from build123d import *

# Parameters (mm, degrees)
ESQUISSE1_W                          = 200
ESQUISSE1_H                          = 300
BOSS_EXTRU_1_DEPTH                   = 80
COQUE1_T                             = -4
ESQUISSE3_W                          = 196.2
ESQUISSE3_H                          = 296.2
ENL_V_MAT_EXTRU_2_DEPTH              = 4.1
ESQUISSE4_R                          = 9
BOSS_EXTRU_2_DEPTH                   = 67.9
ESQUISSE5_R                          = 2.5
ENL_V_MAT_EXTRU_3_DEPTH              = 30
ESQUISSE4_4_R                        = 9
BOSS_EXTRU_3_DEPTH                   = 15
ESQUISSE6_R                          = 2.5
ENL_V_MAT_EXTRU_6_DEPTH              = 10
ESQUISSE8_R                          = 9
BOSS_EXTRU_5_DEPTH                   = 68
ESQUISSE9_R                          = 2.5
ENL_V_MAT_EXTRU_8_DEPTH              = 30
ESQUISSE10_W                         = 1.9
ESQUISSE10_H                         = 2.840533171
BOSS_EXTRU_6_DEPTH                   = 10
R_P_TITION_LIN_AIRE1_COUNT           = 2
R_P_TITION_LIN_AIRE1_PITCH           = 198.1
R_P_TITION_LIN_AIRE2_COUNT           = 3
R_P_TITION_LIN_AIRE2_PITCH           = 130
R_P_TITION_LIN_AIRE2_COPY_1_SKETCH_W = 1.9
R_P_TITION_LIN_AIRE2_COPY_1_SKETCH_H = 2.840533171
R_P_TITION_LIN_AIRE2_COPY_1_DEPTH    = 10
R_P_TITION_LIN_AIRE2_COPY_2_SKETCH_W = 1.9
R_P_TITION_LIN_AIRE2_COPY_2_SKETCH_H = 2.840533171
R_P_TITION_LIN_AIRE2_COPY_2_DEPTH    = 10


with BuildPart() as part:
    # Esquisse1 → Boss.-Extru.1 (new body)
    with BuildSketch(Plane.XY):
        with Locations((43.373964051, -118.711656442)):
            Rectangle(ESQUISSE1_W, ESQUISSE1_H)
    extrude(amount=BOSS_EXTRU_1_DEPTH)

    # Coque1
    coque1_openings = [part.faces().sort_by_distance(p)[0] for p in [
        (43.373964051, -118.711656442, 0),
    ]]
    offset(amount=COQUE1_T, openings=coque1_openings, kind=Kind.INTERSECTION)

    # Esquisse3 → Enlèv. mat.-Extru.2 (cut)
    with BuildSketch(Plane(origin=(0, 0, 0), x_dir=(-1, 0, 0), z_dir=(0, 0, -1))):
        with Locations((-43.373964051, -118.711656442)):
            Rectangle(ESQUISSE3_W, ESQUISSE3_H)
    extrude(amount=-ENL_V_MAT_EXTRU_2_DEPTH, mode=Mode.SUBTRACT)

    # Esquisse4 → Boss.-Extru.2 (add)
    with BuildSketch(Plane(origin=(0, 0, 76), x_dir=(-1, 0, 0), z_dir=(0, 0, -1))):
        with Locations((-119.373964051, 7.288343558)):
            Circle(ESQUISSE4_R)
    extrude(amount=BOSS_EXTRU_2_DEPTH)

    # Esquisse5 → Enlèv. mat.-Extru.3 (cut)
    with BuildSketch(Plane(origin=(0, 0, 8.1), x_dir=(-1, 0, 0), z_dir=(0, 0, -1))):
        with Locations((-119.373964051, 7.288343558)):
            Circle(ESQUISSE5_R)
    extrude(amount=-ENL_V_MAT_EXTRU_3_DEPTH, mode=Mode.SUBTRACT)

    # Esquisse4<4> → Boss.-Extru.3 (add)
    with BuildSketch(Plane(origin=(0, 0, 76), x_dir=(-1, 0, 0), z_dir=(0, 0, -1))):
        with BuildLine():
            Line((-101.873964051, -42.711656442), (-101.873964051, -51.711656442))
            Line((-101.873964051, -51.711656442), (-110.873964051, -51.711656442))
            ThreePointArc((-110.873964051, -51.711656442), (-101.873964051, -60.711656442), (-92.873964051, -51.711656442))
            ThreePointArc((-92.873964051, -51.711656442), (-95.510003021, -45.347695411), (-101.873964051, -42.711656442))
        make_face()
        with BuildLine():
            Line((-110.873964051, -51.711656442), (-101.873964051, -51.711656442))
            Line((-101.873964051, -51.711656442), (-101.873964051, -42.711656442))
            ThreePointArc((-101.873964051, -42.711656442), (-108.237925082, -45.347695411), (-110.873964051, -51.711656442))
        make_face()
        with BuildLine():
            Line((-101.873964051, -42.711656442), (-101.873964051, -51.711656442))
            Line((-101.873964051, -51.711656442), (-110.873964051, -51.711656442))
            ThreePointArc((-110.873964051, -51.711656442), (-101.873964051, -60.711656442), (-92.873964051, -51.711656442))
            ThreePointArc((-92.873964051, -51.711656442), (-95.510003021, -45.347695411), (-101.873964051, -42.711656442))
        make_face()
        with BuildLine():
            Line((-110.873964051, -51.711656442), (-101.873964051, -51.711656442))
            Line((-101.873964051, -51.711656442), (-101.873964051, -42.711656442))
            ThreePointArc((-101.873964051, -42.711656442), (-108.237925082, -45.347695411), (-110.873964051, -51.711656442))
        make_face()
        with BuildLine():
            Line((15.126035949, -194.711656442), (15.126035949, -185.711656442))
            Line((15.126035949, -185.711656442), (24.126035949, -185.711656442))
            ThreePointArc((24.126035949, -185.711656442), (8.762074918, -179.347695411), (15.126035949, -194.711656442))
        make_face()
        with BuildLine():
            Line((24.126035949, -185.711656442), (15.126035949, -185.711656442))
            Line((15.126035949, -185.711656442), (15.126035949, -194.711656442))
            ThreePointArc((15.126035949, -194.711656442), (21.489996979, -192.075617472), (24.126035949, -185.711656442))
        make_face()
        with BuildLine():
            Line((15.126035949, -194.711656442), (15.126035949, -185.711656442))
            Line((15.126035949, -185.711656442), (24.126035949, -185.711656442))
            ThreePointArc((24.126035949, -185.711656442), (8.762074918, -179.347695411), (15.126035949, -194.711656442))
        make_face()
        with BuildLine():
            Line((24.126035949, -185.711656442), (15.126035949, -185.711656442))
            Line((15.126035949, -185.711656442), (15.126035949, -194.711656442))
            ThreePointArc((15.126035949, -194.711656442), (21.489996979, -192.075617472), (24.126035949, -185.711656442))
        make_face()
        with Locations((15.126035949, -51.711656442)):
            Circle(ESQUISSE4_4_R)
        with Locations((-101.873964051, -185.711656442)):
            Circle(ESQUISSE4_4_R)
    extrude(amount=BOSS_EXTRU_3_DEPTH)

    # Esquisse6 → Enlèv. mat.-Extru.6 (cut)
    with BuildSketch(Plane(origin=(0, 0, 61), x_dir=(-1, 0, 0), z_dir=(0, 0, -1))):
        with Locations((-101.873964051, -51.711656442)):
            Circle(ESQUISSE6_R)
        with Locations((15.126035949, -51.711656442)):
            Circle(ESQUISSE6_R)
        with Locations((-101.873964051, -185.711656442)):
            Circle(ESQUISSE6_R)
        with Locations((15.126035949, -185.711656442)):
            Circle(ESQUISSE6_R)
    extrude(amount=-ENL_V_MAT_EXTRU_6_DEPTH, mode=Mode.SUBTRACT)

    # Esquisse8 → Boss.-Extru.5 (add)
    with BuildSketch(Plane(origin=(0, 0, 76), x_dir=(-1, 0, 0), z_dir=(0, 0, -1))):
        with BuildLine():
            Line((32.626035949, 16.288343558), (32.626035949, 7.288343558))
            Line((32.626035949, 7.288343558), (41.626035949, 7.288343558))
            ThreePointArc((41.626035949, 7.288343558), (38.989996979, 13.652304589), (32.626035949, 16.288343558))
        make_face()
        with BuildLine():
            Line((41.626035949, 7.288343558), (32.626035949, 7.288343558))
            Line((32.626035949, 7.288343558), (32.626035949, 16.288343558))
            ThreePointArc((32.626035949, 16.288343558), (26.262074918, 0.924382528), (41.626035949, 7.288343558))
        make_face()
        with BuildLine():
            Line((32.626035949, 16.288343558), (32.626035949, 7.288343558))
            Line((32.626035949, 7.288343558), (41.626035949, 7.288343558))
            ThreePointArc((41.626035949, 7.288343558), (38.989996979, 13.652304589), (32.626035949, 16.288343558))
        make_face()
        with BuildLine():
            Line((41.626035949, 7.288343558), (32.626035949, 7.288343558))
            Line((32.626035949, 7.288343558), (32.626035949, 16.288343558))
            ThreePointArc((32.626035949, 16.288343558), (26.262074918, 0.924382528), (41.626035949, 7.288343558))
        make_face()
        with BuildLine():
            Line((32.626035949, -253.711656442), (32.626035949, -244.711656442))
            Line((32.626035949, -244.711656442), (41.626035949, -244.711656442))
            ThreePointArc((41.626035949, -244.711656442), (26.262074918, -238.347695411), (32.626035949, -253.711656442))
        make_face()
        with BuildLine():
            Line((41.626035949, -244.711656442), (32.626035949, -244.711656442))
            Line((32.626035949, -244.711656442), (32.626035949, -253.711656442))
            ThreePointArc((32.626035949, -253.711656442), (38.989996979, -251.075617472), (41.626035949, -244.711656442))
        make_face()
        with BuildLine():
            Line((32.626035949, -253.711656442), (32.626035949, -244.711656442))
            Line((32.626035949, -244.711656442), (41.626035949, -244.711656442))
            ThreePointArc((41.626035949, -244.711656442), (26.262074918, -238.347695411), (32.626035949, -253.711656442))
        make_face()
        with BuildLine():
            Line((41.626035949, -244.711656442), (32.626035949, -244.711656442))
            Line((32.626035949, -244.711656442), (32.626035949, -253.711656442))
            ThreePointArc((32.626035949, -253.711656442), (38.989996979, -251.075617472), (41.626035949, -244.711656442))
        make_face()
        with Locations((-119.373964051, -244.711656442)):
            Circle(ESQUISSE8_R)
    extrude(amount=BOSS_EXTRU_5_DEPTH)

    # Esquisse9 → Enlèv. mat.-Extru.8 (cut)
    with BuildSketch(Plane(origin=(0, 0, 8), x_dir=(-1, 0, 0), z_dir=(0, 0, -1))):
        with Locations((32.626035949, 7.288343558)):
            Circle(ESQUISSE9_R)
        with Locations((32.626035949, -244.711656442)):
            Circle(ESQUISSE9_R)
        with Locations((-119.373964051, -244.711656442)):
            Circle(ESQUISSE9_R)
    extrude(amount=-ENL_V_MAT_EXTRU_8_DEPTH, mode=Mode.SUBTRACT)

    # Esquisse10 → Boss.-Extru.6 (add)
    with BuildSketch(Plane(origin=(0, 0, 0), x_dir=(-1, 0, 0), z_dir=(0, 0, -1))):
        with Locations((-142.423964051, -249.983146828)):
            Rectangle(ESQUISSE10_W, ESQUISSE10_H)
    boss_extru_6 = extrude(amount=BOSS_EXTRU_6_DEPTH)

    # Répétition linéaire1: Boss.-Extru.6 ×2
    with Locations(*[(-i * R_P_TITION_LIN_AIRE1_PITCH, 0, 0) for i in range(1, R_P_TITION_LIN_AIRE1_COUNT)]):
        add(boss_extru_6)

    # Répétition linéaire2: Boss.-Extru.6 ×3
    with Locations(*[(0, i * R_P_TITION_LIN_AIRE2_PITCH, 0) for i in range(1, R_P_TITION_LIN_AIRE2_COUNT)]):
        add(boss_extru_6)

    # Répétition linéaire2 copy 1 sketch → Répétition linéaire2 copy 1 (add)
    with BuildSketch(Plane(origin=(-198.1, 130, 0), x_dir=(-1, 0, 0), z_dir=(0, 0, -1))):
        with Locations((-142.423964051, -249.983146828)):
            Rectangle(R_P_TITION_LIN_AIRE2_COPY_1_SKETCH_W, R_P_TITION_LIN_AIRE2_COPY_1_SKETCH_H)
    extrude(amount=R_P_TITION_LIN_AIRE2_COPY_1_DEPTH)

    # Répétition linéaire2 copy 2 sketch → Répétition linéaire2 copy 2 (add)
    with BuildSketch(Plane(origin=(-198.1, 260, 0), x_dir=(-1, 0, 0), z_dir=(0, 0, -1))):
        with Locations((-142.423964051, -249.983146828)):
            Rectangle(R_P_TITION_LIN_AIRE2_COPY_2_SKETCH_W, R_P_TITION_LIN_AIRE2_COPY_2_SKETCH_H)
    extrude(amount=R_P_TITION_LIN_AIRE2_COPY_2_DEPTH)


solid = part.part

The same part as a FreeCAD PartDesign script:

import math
import FreeCAD as App
import Part
import Sketcher

V = App.Vector
Q = App.Units.Quantity


def faces_at(feature, points):
    """Names of the faces that lie closest to the given points."""
    faces = feature.Shape.Faces
    near = lambda p: min(range(len(faces)), key=lambda i: faces[i].distToShape(Part.Vertex(*p))[0])
    return sorted({f"Face{near(p) + 1}" for p in points})


def add_polygon(sketch, points):
    """Adds a closed chain of lines whose ends are joined by coincident constraints."""
    first, n = sketch.GeometryCount, len(points)
    for a, b in zip(points, points[1:] + points[:1]):
        sketch.addGeometry(Part.LineSegment(App.Vector(*a, 0), App.Vector(*b, 0)), False)
    for i in range(n):
        sketch.addConstraint(Sketcher.Constraint("Coincident", first + i, 2, first + (i + 1) % n, 1))

doc = App.newDocument("Part")
body = doc.addObject("PartDesign::Body", "Body")

# Sketch on XY plane
sketch1 = body.newObject("Sketcher::SketchObject", "Sketch")
sketch1.AttachmentSupport = (doc.getObject("XY_Plane"), [""])
sketch1.MapMode = "FlatFace"
add_polygon(sketch1, [(-57, 31), (-57, -269), (143, -269), (143, 31)])  # lines 0-3
sketch1.addConstraint(Sketcher.Constraint("Vertical", 0))
sketch1.addConstraint(Sketcher.Constraint("Horizontal", 1))
sketch1.addConstraint(Sketcher.Constraint("Vertical", 2))
sketch1.addConstraint(Sketcher.Constraint("Horizontal", 3))
sketch1.addConstraint(Sketcher.Constraint("DistanceX", 1, 1, 1, 2, Q("200 mm")))
sketch1.addConstraint(Sketcher.Constraint("DistanceY", 0, 2, 0, 1, Q("300 mm")))
sketch1.addConstraint(Sketcher.Constraint("DistanceX", 0, 2, -1, 1, Q("56.626036 mm")))
sketch1.addConstraint(Sketcher.Constraint("DistanceY", 0, 2, -1, 1, Q("268.711656 mm")))
pad1 = body.newObject("PartDesign::Pad", "Pad")
pad1.Profile = sketch1
pad1.Length = 80
doc.recompute()

thickness = body.newObject("PartDesign::Thickness", "Thickness")
thickness.Base = (pad1, faces_at(pad1, [(43.374, -118.712, 0)]))
thickness.Value = 4
thickness.Reversed = True
thickness.Join = "Intersection"

# Sketch on XY plane
sketch2 = body.newObject("Sketcher::SketchObject", "Sketch001")
sketch2.AttachmentSupport = (doc.getObject("XY_Plane"), [""])
sketch2.MapMode = "FlatFace"
add_polygon(sketch2, [(141, 29), (141, -267), (-55, -267), (-55, 29)])  # lines 0-3
sketch2.addConstraint(Sketcher.Constraint("Vertical", 0))
sketch2.addConstraint(Sketcher.Constraint("Horizontal", 1))
sketch2.addConstraint(Sketcher.Constraint("Vertical", 2))
sketch2.addConstraint(Sketcher.Constraint("Horizontal", 3))
sketch2.addConstraint(Sketcher.Constraint("DistanceX", 1, 2, 1, 1, Q("196.2 mm")))
sketch2.addConstraint(Sketcher.Constraint("DistanceY", 0, 2, 0, 1, Q("296.2 mm")))
sketch2.addConstraint(Sketcher.Constraint("DistanceX", -1, 1, 0, 2, Q("141.473964 mm")))
sketch2.addConstraint(Sketcher.Constraint("DistanceY", 0, 2, -1, 1, Q("266.811656 mm")))
pocket1 = body.newObject("PartDesign::Pocket", "Pocket")
pocket1.Profile = sketch2
pocket1.Length = 4.1
pocket1.Reversed = True

# Sketch on XY plane
sketch3 = body.newObject("Sketcher::SketchObject", "Sketch002")
sketch3.AttachmentSupport = (doc.getObject("XY_Plane"), [""])
sketch3.MapMode = "FlatFace"
sketch3.AttachmentOffset = App.Placement(V(0, 0, 76), App.Rotation())
sketch3.addGeometry(Part.Circle(V(119, 7, 0), V(0, 0, 1), 9), False)
sketch3.addConstraint(Sketcher.Constraint("Diameter", 0, Q("18 mm")))
sketch3.addConstraint(Sketcher.Constraint("DistanceX", -1, 1, 0, 3, Q("119.373964 mm")))
sketch3.addConstraint(Sketcher.Constraint("DistanceY", -1, 1, 0, 3, Q("7.288344 mm")))
pad2 = body.newObject("PartDesign::Pad", "Pad001")
pad2.Profile = sketch3
pad2.Length = 67.9
pad2.Reversed = True

# Sketch on XY plane
sketch4 = body.newObject("Sketcher::SketchObject", "Sketch003")
sketch4.AttachmentSupport = (doc.getObject("XY_Plane"), [""])
sketch4.MapMode = "FlatFace"
sketch4.AttachmentOffset = App.Placement(V(0, 0, 8.1), App.Rotation())
sketch4.addGeometry(Part.Circle(V(119.4, 7.3, 0), V(0, 0, 1), 2.5), False)
sketch4.addConstraint(Sketcher.Constraint("Diameter", 0, Q("5 mm")))
sketch4.addConstraint(Sketcher.Constraint("DistanceX", -1, 1, 0, 3, Q("119.373964 mm")))
sketch4.addConstraint(Sketcher.Constraint("DistanceY", -1, 1, 0, 3, Q("7.288344 mm")))
pocket2 = body.newObject("PartDesign::Pocket", "Pocket001")
pocket2.Profile = sketch4
pocket2.Length = 30
pocket2.Reversed = True

# Sketch on XY plane
sketch5 = body.newObject("Sketcher::SketchObject", "Sketch004")
sketch5.AttachmentSupport = (doc.getObject("XY_Plane"), [""])
sketch5.MapMode = "FlatFace"
sketch5.AttachmentOffset = App.Placement(V(0, 0, 76), App.Rotation())
sketch5.addGeometry(Part.ArcOfCircle(Part.Circle(V(102, -52, 0), V(0, 0, 1), 9), math.radians(180), math.radians(360)), False)
sketch5.addGeometry(Part.ArcOfCircle(Part.Circle(V(102, -52, 0), V(0, 0, 1), 9), math.radians(90), math.radians(180)), False)
sketch5.addGeometry(Part.ArcOfCircle(Part.Circle(V(102, -52, 0), V(0, 0, 1), 9), math.radians(0), math.radians(90)), False)
sketch5.addGeometry(Part.ArcOfCircle(Part.Circle(V(-15, -186, 0), V(0, 0, 1), 9), math.radians(-90), math.radians(180)), False)
sketch5.addGeometry(Part.ArcOfCircle(Part.Circle(V(-15, -186, 0), V(0, 0, 1), 9), math.radians(-180), math.radians(-90)), False)
sketch5.addGeometry(Part.Circle(V(-15, -52, 0), V(0, 0, 1), 9), False)
sketch5.addGeometry(Part.Circle(V(102, -186, 0), V(0, 0, 1), 9), False)
sketch5.addConstraint(Sketcher.Constraint("Tangent", 0, 1, 1, 2))
sketch5.addConstraint(Sketcher.Constraint("Tangent", 1, 1, 2, 2))
sketch5.addConstraint(Sketcher.Constraint("Tangent", 2, 1, 0, 2))
sketch5.addConstraint(Sketcher.Constraint("Tangent", 3, 1, 4, 2))
sketch5.addConstraint(Sketcher.Constraint("Coincident", 4, 1, 3, 2))
sketch5.addConstraint(Sketcher.Constraint("Equal", 2, 3))
sketch5.addConstraint(Sketcher.Constraint("Equal", 4, 5))
sketch5.addConstraint(Sketcher.Constraint("Equal", 5, 6))
sketch5.addConstraint(Sketcher.Constraint("Horizontal", 2, 3, 5, 3))
sketch5.addConstraint(Sketcher.Constraint("Horizontal", 4, 3, 6, 3))
sketch5.addConstraint(Sketcher.Constraint("Horizontal", 5, 3, 0, 1))
sketch5.addConstraint(Sketcher.Constraint("Horizontal", 0, 1, 2, 1))
sketch5.addConstraint(Sketcher.Constraint("Horizontal", 6, 3, 4, 1))
sketch5.addConstraint(Sketcher.Constraint("Vertical", 4, 3, 5, 3))
sketch5.addConstraint(Sketcher.Constraint("Vertical", 2, 3, 6, 3))
sketch5.addConstraint(Sketcher.Constraint("Vertical", 6, 3, 1, 1))
sketch5.addConstraint(Sketcher.Constraint("Vertical", 5, 3, 3, 1))
sketch5.addConstraint(Sketcher.Constraint("Diameter", 5, Q("18 mm")))
sketch5.addConstraint(Sketcher.Constraint("DistanceX", 3, 3, 1, 3, Q("117 mm")))
sketch5.addConstraint(Sketcher.Constraint("DistanceY", 3, 3, 1, 3, Q("134 mm")))
sketch5.addConstraint(Sketcher.Constraint("DistanceX", -1, 1, 0, 3, Q("101.873964 mm")))
sketch5.addConstraint(Sketcher.Constraint("DistanceY", 0, 3, -1, 1, Q("51.711656 mm")))
pad3 = body.newObject("PartDesign::Pad", "Pad002")
pad3.Profile = sketch5
pad3.Length = 15
pad3.Reversed = True

# Sketch on XY plane
sketch6 = body.newObject("Sketcher::SketchObject", "Sketch005")
sketch6.AttachmentSupport = (doc.getObject("XY_Plane"), [""])
sketch6.MapMode = "FlatFace"
sketch6.AttachmentOffset = App.Placement(V(0, 0, 61), App.Rotation())
sketch6.addGeometry(Part.Circle(V(101.9, -51.7, 0), V(0, 0, 1), 2.5), False)
sketch6.addGeometry(Part.Circle(V(-15.1, -51.7, 0), V(0, 0, 1), 2.5), False)
sketch6.addGeometry(Part.Circle(V(101.9, -185.7, 0), V(0, 0, 1), 2.5), False)
sketch6.addGeometry(Part.Circle(V(-15.1, -185.7, 0), V(0, 0, 1), 2.5), False)
sketch6.addConstraint(Sketcher.Constraint("Equal", 0, 1))
sketch6.addConstraint(Sketcher.Constraint("Equal", 1, 2))
sketch6.addConstraint(Sketcher.Constraint("Equal", 2, 3))
sketch6.addConstraint(Sketcher.Constraint("Horizontal", 0, 3, 1, 3))
sketch6.addConstraint(Sketcher.Constraint("Horizontal", 2, 3, 3, 3))
sketch6.addConstraint(Sketcher.Constraint("Vertical", 0, 3, 2, 3))
sketch6.addConstraint(Sketcher.Constraint("Vertical", 1, 3, 3, 3))
sketch6.addConstraint(Sketcher.Constraint("Diameter", 0, Q("5 mm")))
sketch6.addConstraint(Sketcher.Constraint("DistanceX", 1, 3, 0, 3, Q("117 mm")))
sketch6.addConstraint(Sketcher.Constraint("DistanceY", 2, 3, 0, 3, Q("134 mm")))
sketch6.addConstraint(Sketcher.Constraint("DistanceX", -1, 1, 0, 3, Q("101.873964 mm")))
sketch6.addConstraint(Sketcher.Constraint("DistanceY", 0, 3, -1, 1, Q("51.711656 mm")))
pocket3 = body.newObject("PartDesign::Pocket", "Pocket002")
pocket3.Profile = sketch6
pocket3.Length = 10
pocket3.Reversed = True

# Sketch on XY plane
sketch7 = body.newObject("Sketcher::SketchObject", "Sketch006")
sketch7.AttachmentSupport = (doc.getObject("XY_Plane"), [""])
sketch7.MapMode = "FlatFace"
sketch7.AttachmentOffset = App.Placement(V(0, 0, 76), App.Rotation())
sketch7.addGeometry(Part.ArcOfCircle(Part.Circle(V(-33, 7, 0), V(0, 0, 1), 9), math.radians(90), math.radians(180)), False)
sketch7.addGeometry(Part.ArcOfCircle(Part.Circle(V(-33, 7, 0), V(0, 0, 1), 9), math.radians(180), math.radians(450)), False)
sketch7.addGeometry(Part.ArcOfCircle(Part.Circle(V(-33, -245, 0), V(0, 0, 1), 9), math.radians(-90), math.radians(180)), False)
sketch7.addGeometry(Part.ArcOfCircle(Part.Circle(V(-33, -245, 0), V(0, 0, 1), 9), math.radians(-180), math.radians(-90)), False)
sketch7.addGeometry(Part.Circle(V(119, -245, 0), V(0, 0, 1), 9), False)
sketch7.addConstraint(Sketcher.Constraint("Tangent", 0, 1, 1, 2))
sketch7.addConstraint(Sketcher.Constraint("Coincident", 1, 1, 0, 2))
sketch7.addConstraint(Sketcher.Constraint("Tangent", 2, 1, 3, 2))
sketch7.addConstraint(Sketcher.Constraint("Coincident", 3, 1, 2, 2))
sketch7.addConstraint(Sketcher.Constraint("Equal", 1, 2))
sketch7.addConstraint(Sketcher.Constraint("Equal", 3, 4))
sketch7.addConstraint(Sketcher.Constraint("Horizontal", 3, 3, 4, 3))
sketch7.addConstraint(Sketcher.Constraint("Horizontal", 0, 3, 1, 1))
sketch7.addConstraint(Sketcher.Constraint("Horizontal", 4, 3, 3, 1))
sketch7.addConstraint(Sketcher.Constraint("Vertical", 1, 3, 2, 3))
sketch7.addConstraint(Sketcher.Constraint("Vertical", 3, 3, 0, 1))
sketch7.addConstraint(Sketcher.Constraint("Vertical", 0, 1, 2, 1))
sketch7.addConstraint(Sketcher.Constraint("Diameter", 4, Q("18 mm")))
sketch7.addConstraint(Sketcher.Constraint("DistanceY", 2, 3, 0, 3, Q("252 mm")))
sketch7.addConstraint(Sketcher.Constraint("DistanceX", 3, 3, 4, 3, Q("152 mm")))
sketch7.addConstraint(Sketcher.Constraint("DistanceX", 0, 3, -1, 1, Q("32.626036 mm")))
sketch7.addConstraint(Sketcher.Constraint("DistanceY", -1, 1, 0, 3, Q("7.288344 mm")))
pad4 = body.newObject("PartDesign::Pad", "Pad003")
pad4.Profile = sketch7
pad4.Length = 68
pad4.Reversed = True

# Sketch on XY plane
sketch8 = body.newObject("Sketcher::SketchObject", "Sketch007")
sketch8.AttachmentSupport = (doc.getObject("XY_Plane"), [""])
sketch8.MapMode = "FlatFace"
sketch8.AttachmentOffset = App.Placement(V(0, 0, 8), App.Rotation())
sketch8.addGeometry(Part.Circle(V(-32.6, 7.3, 0), V(0, 0, 1), 2.5), False)
sketch8.addGeometry(Part.Circle(V(-32.6, -244.7, 0), V(0, 0, 1), 2.5), False)
sketch8.addGeometry(Part.Circle(V(119.4, -244.7, 0), V(0, 0, 1), 2.5), False)
sketch8.addConstraint(Sketcher.Constraint("Equal", 0, 1))
sketch8.addConstraint(Sketcher.Constraint("Equal", 1, 2))
sketch8.addConstraint(Sketcher.Constraint("Horizontal", 1, 3, 2, 3))
sketch8.addConstraint(Sketcher.Constraint("Vertical", 0, 3, 1, 3))
sketch8.addConstraint(Sketcher.Constraint("Diameter", 0, Q("5 mm")))
sketch8.addConstraint(Sketcher.Constraint("DistanceY", 1, 3, 0, 3, Q("252 mm")))
sketch8.addConstraint(Sketcher.Constraint("DistanceX", 1, 3, 2, 3, Q("152 mm")))
sketch8.addConstraint(Sketcher.Constraint("DistanceX", 0, 3, -1, 1, Q("32.626036 mm")))
sketch8.addConstraint(Sketcher.Constraint("DistanceY", -1, 1, 0, 3, Q("7.288344 mm")))
pocket4 = body.newObject("PartDesign::Pocket", "Pocket003")
pocket4.Profile = sketch8
pocket4.Length = 30
pocket4.Reversed = True

# Sketch on XY plane
sketch9 = body.newObject("Sketcher::SketchObject", "Sketch008")
sketch9.AttachmentSupport = (doc.getObject("XY_Plane"), [""])
sketch9.MapMode = "FlatFace"
add_polygon(sketch9, [(143.4, -248.6), (143.4, -251.4), (141.5, -251.4), (141.5, -248.6)])  # lines 0-3
sketch9.addConstraint(Sketcher.Constraint("Vertical", 0))
sketch9.addConstraint(Sketcher.Constraint("Horizontal", 1))
sketch9.addConstraint(Sketcher.Constraint("Vertical", 2))
sketch9.addConstraint(Sketcher.Constraint("Horizontal", 3))
sketch9.addConstraint(Sketcher.Constraint("DistanceX", 1, 2, 1, 1, Q("1.9 mm")))
sketch9.addConstraint(Sketcher.Constraint("DistanceY", 0, 2, 0, 1, Q("2.840533 mm")))
sketch9.addConstraint(Sketcher.Constraint("DistanceY", 2, 2, -1, 1, Q("248.56288 mm")))
sketch9.addConstraint(Sketcher.Constraint("DistanceX", -1, 1, 0, 2, Q("143.373964 mm")))
pad5 = body.newObject("PartDesign::Pad", "Pad004")
pad5.Profile = sketch9
pad5.Length = 10
pad5.Reversed = True
doc.recompute()

linearpattern = body.newObject("PartDesign::LinearPattern", "LinearPattern")
linearpattern.Originals = [pad5]
linearpattern.Direction = (doc.getObject("X_Axis"), [""])
linearpattern.Mode = "offset"
linearpattern.Offset = 198.1
linearpattern.Occurrences = 2
linearpattern.Reversed = True
body.Tip = linearpattern
doc.recompute()

linearpattern2 = body.newObject("PartDesign::LinearPattern", "LinearPattern001")
linearpattern2.Originals = [pad5]
linearpattern2.Direction = (doc.getObject("Y_Axis"), [""])
linearpattern2.Mode = "offset"
linearpattern2.Offset = 130
linearpattern2.Occurrences = 3
body.Tip = linearpattern2

# Sketch on XY plane
sketch10 = body.newObject("Sketcher::SketchObject", "Sketch009")
sketch10.AttachmentSupport = (doc.getObject("XY_Plane"), [""])
sketch10.MapMode = "FlatFace"
add_polygon(sketch10, [(-54.7, -118.6), (-54.7, -121.4), (-56.6, -121.4), (-56.6, -118.6)])  # lines 0-3
sketch10.addConstraint(Sketcher.Constraint("Vertical", 0))
sketch10.addConstraint(Sketcher.Constraint("Horizontal", 1))
sketch10.addConstraint(Sketcher.Constraint("Vertical", 2))
sketch10.addConstraint(Sketcher.Constraint("Horizontal", 3))
sketch10.addConstraint(Sketcher.Constraint("DistanceX", 1, 2, 1, 1, Q("1.9 mm")))
sketch10.addConstraint(Sketcher.Constraint("DistanceY", 0, 2, 0, 1, Q("2.840533 mm")))
sketch10.addConstraint(Sketcher.Constraint("DistanceY", 2, 2, -1, 1, Q("118.56288 mm")))
sketch10.addConstraint(Sketcher.Constraint("DistanceX", 0, 2, -1, 1, Q("54.726036 mm")))
pad6 = body.newObject("PartDesign::Pad", "Pad005")
pad6.Profile = sketch10
pad6.Length = 10
pad6.Reversed = True

# Sketch on XY plane
sketch11 = body.newObject("Sketcher::SketchObject", "Sketch010")
sketch11.AttachmentSupport = (doc.getObject("XY_Plane"), [""])
sketch11.MapMode = "FlatFace"
add_polygon(sketch11, [(-54.7, 11.4), (-54.7, 8.6), (-56.6, 8.6), (-56.6, 11.4)])  # lines 0-3
sketch11.addConstraint(Sketcher.Constraint("Vertical", 0))
sketch11.addConstraint(Sketcher.Constraint("Horizontal", 1))
sketch11.addConstraint(Sketcher.Constraint("Vertical", 2))
sketch11.addConstraint(Sketcher.Constraint("Horizontal", 3))
sketch11.addConstraint(Sketcher.Constraint("DistanceX", 1, 2, 1, 1, Q("1.9 mm")))
sketch11.addConstraint(Sketcher.Constraint("DistanceY", 0, 2, 0, 1, Q("2.840533 mm")))
sketch11.addConstraint(Sketcher.Constraint("DistanceY", -1, 1, 2, 2, Q("11.43712 mm")))
sketch11.addConstraint(Sketcher.Constraint("DistanceX", 0, 2, -1, 1, Q("54.726036 mm")))
pad7 = body.newObject("PartDesign::Pad", "Pad006")
pad7.Profile = sketch11
pad7.Length = 10
pad7.Reversed = True

doc.recompute()
